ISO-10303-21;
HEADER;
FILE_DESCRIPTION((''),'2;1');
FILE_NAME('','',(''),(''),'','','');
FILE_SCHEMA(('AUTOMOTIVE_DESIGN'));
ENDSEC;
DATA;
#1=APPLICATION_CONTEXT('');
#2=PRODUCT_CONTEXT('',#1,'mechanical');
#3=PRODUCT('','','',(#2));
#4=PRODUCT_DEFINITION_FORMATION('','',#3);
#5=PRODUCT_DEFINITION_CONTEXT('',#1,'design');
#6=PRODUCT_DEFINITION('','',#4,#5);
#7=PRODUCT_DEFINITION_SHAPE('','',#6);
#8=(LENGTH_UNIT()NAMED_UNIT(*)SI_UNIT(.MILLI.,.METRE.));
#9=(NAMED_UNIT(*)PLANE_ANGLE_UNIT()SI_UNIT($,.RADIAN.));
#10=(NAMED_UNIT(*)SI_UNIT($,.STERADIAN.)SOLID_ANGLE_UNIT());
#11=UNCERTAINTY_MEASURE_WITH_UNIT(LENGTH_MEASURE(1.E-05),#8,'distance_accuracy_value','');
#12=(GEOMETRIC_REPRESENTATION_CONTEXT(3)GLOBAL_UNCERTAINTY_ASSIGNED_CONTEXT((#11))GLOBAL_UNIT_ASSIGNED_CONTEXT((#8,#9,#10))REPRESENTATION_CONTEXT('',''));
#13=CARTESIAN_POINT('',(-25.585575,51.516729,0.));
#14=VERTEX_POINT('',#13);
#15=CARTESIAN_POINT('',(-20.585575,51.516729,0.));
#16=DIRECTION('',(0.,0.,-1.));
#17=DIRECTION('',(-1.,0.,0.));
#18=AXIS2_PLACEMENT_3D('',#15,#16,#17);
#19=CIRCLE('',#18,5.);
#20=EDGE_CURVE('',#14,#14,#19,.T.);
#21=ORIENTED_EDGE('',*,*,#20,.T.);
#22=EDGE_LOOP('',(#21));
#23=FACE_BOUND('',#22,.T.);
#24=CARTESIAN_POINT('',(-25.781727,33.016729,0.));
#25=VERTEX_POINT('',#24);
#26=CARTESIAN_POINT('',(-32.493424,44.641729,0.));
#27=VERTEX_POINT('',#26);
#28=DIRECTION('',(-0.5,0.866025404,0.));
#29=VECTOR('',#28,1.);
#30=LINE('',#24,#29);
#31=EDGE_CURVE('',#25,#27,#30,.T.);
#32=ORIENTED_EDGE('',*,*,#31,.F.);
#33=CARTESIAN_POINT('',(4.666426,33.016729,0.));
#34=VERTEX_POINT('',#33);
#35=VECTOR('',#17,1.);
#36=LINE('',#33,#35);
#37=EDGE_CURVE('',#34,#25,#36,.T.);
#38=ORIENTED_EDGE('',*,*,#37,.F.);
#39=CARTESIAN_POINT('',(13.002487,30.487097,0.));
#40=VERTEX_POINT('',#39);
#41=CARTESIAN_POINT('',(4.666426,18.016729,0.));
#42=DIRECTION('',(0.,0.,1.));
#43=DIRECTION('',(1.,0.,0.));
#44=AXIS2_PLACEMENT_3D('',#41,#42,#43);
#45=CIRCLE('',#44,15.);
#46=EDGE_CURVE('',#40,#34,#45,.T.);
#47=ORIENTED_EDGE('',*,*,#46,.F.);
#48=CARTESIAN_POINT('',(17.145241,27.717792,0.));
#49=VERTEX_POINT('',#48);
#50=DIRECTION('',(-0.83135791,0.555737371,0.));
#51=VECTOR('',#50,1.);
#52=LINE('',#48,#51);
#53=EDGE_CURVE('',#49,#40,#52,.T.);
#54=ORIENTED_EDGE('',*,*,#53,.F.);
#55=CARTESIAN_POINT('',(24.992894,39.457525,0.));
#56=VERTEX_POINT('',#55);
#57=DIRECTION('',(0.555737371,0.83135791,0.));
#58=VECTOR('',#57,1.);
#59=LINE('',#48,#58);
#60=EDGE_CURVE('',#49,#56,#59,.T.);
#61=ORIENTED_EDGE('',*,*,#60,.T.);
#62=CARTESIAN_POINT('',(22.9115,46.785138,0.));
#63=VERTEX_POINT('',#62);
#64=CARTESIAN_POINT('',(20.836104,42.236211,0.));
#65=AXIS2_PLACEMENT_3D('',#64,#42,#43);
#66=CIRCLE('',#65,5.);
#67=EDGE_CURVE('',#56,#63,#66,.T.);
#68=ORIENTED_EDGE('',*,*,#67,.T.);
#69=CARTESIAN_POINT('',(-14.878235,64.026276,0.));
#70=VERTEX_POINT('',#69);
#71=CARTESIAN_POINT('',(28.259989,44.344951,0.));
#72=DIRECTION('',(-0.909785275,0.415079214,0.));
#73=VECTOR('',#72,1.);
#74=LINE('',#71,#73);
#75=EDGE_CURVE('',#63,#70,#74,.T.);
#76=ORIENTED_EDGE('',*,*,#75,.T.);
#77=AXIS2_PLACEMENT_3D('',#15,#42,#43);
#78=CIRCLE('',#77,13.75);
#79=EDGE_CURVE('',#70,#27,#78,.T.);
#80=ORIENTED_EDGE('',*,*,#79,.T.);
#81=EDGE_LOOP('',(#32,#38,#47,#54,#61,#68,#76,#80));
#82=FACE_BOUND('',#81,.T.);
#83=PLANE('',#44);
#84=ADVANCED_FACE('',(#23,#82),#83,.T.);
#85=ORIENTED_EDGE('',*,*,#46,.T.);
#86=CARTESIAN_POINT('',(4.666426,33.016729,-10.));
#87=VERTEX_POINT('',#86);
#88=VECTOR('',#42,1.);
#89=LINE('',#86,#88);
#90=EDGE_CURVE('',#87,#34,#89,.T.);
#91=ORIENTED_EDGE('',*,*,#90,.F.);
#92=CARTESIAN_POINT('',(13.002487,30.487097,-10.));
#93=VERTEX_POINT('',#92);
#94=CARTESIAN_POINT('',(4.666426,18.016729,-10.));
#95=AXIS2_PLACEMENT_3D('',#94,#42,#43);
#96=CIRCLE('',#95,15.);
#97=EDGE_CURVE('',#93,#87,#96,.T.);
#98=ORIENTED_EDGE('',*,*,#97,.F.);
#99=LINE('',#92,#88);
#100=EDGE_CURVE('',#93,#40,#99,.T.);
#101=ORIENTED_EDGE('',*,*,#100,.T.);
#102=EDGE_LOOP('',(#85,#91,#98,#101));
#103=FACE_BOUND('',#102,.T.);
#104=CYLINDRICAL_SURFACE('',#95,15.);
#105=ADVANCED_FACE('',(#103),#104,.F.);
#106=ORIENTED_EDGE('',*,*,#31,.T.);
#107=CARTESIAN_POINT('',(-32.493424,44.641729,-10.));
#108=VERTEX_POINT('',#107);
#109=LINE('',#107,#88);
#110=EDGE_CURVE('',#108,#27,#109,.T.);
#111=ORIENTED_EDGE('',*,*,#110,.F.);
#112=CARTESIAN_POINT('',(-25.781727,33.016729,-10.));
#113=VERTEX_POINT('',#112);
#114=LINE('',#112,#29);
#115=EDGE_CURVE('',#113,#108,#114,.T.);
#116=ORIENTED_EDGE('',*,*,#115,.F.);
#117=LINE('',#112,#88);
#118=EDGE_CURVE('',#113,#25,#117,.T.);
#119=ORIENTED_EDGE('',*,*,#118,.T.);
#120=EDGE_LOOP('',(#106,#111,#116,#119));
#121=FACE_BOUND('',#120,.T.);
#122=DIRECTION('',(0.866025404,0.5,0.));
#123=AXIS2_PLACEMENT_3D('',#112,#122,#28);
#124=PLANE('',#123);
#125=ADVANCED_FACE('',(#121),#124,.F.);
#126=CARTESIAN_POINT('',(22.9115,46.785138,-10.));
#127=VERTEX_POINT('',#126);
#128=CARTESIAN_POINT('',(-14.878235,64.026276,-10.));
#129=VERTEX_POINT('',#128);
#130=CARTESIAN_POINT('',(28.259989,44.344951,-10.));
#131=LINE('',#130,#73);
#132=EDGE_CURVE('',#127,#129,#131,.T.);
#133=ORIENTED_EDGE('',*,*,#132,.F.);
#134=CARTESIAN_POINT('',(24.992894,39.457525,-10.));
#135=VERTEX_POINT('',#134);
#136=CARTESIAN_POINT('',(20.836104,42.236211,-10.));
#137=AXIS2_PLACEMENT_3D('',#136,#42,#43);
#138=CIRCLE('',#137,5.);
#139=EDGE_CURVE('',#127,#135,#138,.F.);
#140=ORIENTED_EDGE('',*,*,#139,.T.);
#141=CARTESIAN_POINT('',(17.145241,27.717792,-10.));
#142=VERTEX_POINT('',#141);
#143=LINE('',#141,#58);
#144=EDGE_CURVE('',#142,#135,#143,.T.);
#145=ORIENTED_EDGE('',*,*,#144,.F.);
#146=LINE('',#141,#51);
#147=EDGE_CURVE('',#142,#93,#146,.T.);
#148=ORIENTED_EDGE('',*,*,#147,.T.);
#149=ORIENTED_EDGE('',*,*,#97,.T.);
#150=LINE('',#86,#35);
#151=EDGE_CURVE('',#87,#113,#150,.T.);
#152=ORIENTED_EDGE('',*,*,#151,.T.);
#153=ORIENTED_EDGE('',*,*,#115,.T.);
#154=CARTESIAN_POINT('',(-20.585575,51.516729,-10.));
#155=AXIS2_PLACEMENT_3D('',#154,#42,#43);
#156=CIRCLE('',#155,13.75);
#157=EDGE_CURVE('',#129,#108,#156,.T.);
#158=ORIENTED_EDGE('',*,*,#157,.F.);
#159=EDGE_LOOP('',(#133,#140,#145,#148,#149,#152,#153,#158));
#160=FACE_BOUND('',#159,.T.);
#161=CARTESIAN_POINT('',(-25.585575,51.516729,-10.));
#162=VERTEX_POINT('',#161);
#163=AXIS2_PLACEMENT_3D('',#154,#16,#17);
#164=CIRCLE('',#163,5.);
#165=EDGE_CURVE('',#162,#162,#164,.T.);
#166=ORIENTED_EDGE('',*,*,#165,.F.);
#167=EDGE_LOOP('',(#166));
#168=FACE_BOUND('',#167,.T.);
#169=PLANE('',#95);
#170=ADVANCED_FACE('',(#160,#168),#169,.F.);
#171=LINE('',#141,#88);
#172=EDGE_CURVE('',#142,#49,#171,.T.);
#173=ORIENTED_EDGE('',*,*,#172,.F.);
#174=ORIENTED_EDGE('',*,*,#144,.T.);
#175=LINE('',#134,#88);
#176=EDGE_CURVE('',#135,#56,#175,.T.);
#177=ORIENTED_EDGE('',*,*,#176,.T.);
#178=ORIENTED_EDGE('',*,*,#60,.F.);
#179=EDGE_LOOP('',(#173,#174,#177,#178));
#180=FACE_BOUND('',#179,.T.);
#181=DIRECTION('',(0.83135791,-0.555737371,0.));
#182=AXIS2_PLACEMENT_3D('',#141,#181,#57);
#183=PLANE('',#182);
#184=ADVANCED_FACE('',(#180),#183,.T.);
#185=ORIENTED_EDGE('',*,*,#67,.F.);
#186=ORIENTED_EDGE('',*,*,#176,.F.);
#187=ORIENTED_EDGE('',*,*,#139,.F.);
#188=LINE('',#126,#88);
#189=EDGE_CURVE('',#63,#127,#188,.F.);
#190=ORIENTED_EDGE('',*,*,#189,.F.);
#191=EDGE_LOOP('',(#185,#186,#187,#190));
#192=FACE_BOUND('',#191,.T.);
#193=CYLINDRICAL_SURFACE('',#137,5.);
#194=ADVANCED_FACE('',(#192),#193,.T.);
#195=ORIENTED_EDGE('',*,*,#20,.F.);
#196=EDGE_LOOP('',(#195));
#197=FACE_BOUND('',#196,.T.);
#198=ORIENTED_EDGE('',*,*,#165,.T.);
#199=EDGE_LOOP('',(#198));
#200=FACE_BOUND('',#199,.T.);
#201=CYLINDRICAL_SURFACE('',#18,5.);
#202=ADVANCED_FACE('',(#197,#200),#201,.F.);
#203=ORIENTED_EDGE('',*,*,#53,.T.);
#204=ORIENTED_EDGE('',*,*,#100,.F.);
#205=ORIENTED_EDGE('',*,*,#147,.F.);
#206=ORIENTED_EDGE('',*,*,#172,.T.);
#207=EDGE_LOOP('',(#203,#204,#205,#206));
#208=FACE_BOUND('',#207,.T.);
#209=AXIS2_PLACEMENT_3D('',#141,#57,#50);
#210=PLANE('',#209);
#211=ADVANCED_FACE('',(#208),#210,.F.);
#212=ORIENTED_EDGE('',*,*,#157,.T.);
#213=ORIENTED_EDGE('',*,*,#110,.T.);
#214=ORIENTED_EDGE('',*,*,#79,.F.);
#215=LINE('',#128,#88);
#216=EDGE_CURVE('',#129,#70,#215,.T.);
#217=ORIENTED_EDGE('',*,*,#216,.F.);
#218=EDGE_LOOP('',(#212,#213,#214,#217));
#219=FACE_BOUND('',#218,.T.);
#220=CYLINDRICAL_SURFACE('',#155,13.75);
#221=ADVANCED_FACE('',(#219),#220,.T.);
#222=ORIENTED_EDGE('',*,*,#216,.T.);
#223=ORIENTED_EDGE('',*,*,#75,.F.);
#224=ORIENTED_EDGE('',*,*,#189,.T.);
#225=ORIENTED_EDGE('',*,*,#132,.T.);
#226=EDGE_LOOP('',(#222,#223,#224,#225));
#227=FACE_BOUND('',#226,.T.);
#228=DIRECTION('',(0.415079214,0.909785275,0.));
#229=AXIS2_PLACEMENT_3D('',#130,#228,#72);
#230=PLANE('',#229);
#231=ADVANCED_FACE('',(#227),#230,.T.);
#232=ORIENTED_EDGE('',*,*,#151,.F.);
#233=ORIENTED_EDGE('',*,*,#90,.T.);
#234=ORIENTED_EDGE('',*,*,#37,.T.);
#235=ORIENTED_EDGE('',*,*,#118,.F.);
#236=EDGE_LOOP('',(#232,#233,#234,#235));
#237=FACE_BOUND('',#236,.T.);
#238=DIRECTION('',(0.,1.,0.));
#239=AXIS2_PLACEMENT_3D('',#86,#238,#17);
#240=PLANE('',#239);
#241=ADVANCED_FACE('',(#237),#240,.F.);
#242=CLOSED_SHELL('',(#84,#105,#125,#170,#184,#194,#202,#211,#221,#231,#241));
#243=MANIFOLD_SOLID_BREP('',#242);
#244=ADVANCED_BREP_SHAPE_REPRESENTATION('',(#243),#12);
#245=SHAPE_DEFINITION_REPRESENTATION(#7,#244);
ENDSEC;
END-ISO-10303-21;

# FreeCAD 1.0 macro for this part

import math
import FreeCAD as App
import Part
import Sketcher
from FreeCAD import Vector
Q = App.Units.Quantity


def edges_at(feature, points):
    """Names of the edges that pass closest to the given points."""
    edges = feature.Shape.Edges
    near = lambda p: min(range(len(edges)), key=lambda i: edges[i].distToShape(Part.Vertex(*p))[0])
    return sorted({f"Edge{near(p) + 1}" for p in points})

doc = App.newDocument("Part")
params = doc.addObject("Spreadsheet::Sheet", "Params")
for row, (alias, value) in enumerate([
    ("sketch1_radius", "15 mm"),
    ("sketch1_radius2", "13.75 mm"),
    ("sketch1_length", "20 mm"),
    ("pad1_length", "10 mm"),
    ("sketch2_diameter", "10 mm"),
    ("fillet_radius", "5 mm"),
], start=1):
    params.set(f"A{row}", alias)
    params.set(f"B{row}", "=" + value)
    params.setAlias(f"B{row}", alias)

body = doc.addObject("PartDesign::Body", "Body")

sketch1 = body.newObject("Sketcher::SketchObject", "Sketch")
sketch1.AttachmentSupport = (doc.getObject("XY_Plane"), [""])
sketch1.MapMode = "FlatFace"
sketch1.addGeometry([
    Part.LineSegment(Vector(17.1, 27.7, 0), Vector(28.3, 44.3, 0)),
    Part.LineSegment(Vector(28.3, 44.3, 0), Vector(-14.9, 64, 0)),
    Part.ArcOfCircle(Part.Circle(Vector(-20.6, 51.5, 0), Vector(0, 0, 1), 13.7), math.radians(65), math.radians(210)),
    Part.LineSegment(Vector(-32.5, 44.6, 0), Vector(-25.8, 33, 0)),
    Part.LineSegment(Vector(-25.8, 33, 0), Vector(4.7, 33, 0)),
    Part.ArcOfCircle(Part.Circle(Vector(4.7, 18, 0), Vector(0, 0, 1), 15), math.radians(56), math.radians(90)),
    Part.LineSegment(Vector(13, 30.5, 0), Vector(17.1, 27.7, 0)),
], False)
sketch1.addConstraint([
    Sketcher.Constraint("Coincident", 0, 2, 1, 1),
    Sketcher.Constraint("Tangent", 1, 2, 2, 1),
    Sketcher.Constraint("Tangent", 2, 2, 3, 1),
    Sketcher.Constraint("Coincident", 3, 2, 4, 1),
    Sketcher.Constraint("Tangent", 4, 2, 5, 2),
    Sketcher.Constraint("Tangent", 5, 1, 6, 1),
    Sketcher.Constraint("Coincident", 6, 2, 0, 1),
    Sketcher.Constraint("Horizontal", 4),
    Sketcher.Constraint("Perpendicular", 0, 6),
    Sketcher.Constraint("Radius", 5, 15.0),
    Sketcher.Constraint("Angle", 3, Q("-60 deg")),
    Sketcher.Constraint("Radius", 2, 13.75),
    Sketcher.Constraint("Distance", 0, 20.0),
    Sketcher.Constraint("DistanceY", 5, 3, 2, 3, 33.5),
    Sketcher.Constraint("DistanceX", 2, 3, 5, 3, 25.252001),
    Sketcher.Constraint("DistanceX", 5, 1, 0, 2, 15.257502),
    Sketcher.Constraint("Distance", 1, 47.41583),
    Sketcher.Constraint("DistanceY", -1, 1, 2, 3, 51.516729),
    Sketcher.Constraint("DistanceX", -1, 1, 0, 2, 28.259989),
])
sketch1.setExpression("Constraints[9]", "Params.sketch1_radius")
sketch1.setExpression("Constraints[11]", "Params.sketch1_radius2")
sketch1.setExpression("Constraints[12]", "Params.sketch1_length")
pad1 = body.newObject("PartDesign::Pad", "Pad")
pad1.Profile = sketch1
pad1.setExpression("Length", "Params.pad1_length")
pad1.Reversed = True

sketch2 = body.newObject("Sketcher::SketchObject", "Sketch001")
sketch2.AttachmentSupport = (doc.getObject("XY_Plane"), [""])
sketch2.MapMode = "FlatFace"
sketch2.AttachmentOffset = App.Placement(Vector(0, 0, -10), App.Rotation())
sketch2.addGeometry(Part.Circle(Vector(-21, 52, 0), Vector(0, 0, 1), 5), False)
sketch2.addConstraint([
    Sketcher.Constraint("Diameter", 0, 10.0),
    Sketcher.Constraint("DistanceY", -1, 1, 0, 3, 51.516729),
    Sketcher.Constraint("DistanceX", 0, 3, -1, 1, 20.585575),
])
sketch2.setExpression("Constraints[0]", "Params.sketch2_diameter")
pocket1 = body.newObject("PartDesign::Pocket", "Pocket")
pocket1.Profile = sketch2
pocket1.Type = "ThroughAll"
pocket1.Reversed = True
doc.recompute()

fillet = body.newObject("PartDesign::Fillet", "Fillet")
fillet.Base = (pocket1, edges_at(pocket1, [(28.26, 44.345, -5)]))
fillet.setExpression("Radius", "Params.fillet_radius")

doc.recompute()
